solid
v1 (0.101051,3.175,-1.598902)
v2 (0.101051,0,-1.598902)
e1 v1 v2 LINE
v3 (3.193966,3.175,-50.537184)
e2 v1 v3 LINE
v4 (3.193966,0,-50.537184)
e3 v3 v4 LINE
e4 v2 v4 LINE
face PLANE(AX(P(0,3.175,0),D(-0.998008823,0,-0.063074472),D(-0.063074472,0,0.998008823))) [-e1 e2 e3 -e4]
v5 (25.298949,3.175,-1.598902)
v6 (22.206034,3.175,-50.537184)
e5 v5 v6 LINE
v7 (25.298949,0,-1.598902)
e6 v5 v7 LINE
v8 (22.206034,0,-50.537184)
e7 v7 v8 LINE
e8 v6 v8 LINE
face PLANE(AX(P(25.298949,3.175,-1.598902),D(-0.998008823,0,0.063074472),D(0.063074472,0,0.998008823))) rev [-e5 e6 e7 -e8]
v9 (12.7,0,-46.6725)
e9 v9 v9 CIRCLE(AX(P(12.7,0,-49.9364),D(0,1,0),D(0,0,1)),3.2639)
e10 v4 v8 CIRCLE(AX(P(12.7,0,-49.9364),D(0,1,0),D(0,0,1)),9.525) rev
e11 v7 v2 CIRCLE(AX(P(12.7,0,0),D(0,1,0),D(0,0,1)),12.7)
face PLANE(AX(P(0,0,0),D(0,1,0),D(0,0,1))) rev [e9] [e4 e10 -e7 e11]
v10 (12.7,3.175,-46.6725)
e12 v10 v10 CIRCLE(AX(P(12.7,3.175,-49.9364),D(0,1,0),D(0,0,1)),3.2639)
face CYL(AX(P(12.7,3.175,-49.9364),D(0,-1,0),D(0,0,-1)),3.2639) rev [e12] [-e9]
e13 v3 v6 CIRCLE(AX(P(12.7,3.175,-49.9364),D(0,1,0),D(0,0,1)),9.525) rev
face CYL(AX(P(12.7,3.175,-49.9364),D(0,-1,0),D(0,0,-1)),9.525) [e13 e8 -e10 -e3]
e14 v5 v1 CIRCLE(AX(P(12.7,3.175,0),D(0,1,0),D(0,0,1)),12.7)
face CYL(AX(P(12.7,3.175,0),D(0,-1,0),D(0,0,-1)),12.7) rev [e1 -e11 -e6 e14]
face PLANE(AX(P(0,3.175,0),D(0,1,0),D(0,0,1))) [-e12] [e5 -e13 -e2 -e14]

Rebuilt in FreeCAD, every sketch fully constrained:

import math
import FreeCAD as App
import Part
import Sketcher

V = App.Vector
Q = App.Units.Quantity

doc = App.newDocument("Part")
body = doc.addObject("PartDesign::Body", "Body")

sketch1 = doc.addObject("Sketcher::SketchObject", "Sketch")
body.addObject(sketch1)
sketch1.AttachmentSupport = (doc.XZ_Plane, [""])
sketch1.MapMode = "FlatFace"
sketch1.addGeometry([
    Part.LineSegment(V(3.2, -50.5, 0), V(0.1, -1.6, 0)),
    Part.ArcOfCircle(Part.Circle(V(12.7, 0, 0), V(0, 0, 1), 12.7), math.radians(-173), math.radians(-7)),
    Part.LineSegment(V(25.3, -1.6, 0), V(22.2, -50.5, 0)),
    Part.ArcOfCircle(Part.Circle(V(12.7, -49.9, 0), V(0, 0, 1), 9.5), math.radians(-176), math.radians(-4)),
    Part.Circle(V(12.7, -49.9, 0), V(0, 0, 1), 3.3),
], False)
sketch1.addConstraint([
    Sketcher.Constraint("Coincident", 0, 2, 1, 1),
    Sketcher.Constraint("Coincident", 1, 2, 2, 1),
    Sketcher.Constraint("Tangent", 2, 2, 3, 2),
    Sketcher.Constraint("Tangent", 3, 1, 0, 1),
    Sketcher.Constraint("Coincident", 4, 3, 3, 3),
    Sketcher.Constraint("PointOnObject", 1, 3, -1),
    Sketcher.Constraint("Horizontal", 0, 2, 1, 2),
    Sketcher.Constraint("Horizontal", 2, 2, 3, 1),
    Sketcher.Constraint("Radius", 1, Q("0.5 in")),
    Sketcher.Constraint("Diameter", 4, Q("0.257 in")),
    Sketcher.Constraint("Radius", 3, Q("0.375 in")),
    Sketcher.Constraint("DistanceX", -1, 1, 1, 3, Q("0.5 in")),
    Sketcher.Constraint("DistanceY", 3, 3, -1, 1, Q("1.966 in")),
    Sketcher.Constraint("DistanceY", 0, 2, -1, 1, 1.598902),
])
pad1 = doc.addObject("PartDesign::Pad", "Pad")
body.addObject(pad1)
pad1.Profile = sketch1
pad1.Length = Q("0.125 in")
pad1.Reversed = True

doc.recompute()
